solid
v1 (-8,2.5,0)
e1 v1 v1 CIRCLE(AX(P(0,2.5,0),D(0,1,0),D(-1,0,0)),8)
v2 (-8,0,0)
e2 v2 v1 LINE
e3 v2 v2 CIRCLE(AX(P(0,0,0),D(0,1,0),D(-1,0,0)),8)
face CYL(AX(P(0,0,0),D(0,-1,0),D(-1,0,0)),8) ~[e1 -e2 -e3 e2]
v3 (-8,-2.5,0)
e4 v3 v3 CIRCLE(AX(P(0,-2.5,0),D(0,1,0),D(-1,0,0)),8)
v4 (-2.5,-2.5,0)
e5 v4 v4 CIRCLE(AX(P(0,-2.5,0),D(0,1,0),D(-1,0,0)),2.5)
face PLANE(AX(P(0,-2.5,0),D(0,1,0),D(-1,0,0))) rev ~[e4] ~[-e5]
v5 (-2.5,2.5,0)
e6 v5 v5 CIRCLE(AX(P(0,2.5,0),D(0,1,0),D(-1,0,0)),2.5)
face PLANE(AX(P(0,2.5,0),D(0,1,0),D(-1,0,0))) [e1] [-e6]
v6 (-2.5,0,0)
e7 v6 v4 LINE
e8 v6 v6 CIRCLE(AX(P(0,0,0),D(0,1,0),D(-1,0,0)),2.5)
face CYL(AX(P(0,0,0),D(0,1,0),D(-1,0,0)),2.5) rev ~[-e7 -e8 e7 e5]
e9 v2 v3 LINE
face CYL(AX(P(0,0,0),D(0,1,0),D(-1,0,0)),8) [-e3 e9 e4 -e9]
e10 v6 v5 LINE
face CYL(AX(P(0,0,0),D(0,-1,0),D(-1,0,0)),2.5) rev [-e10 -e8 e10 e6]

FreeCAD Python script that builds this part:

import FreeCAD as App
import Part
import Sketcher
from FreeCAD import Vector
Q = App.Units.Quantity

doc = App.newDocument("Part")
body = doc.addObject("PartDesign::Body", "Body")

# Sketch on XZ plane
sketch1 = body.newObject("Sketcher::SketchObject", "Sketch")
sketch1.AttachmentSupport = (doc.getObject("XZ_Plane"), [""])
sketch1.MapMode = "FlatFace"
sketch1.addGeometry(Part.Circle(Vector(0, 0, 0), Vector(0, 0, 1), 8), False)
sketch1.addGeometry(Part.Circle(Vector(0, 0, 0), Vector(0, 0, 1), 2.5), False)
sketch1.addConstraint(Sketcher.Constraint("Coincident", 0, 3, -1, 1))
sketch1.addConstraint(Sketcher.Constraint("Coincident", 1, 3, -1, 1))
sketch1.addConstraint(Sketcher.Constraint("Diameter", 0, Q("16 mm")))
sketch1.addConstraint(Sketcher.Constraint("Diameter", 1, Q("5 mm")))
pad1 = body.newObject("PartDesign::Pad", "Pad")
pad1.Profile = sketch1
pad1.Length = 5
pad1.Midplane = True

doc.recompute()
